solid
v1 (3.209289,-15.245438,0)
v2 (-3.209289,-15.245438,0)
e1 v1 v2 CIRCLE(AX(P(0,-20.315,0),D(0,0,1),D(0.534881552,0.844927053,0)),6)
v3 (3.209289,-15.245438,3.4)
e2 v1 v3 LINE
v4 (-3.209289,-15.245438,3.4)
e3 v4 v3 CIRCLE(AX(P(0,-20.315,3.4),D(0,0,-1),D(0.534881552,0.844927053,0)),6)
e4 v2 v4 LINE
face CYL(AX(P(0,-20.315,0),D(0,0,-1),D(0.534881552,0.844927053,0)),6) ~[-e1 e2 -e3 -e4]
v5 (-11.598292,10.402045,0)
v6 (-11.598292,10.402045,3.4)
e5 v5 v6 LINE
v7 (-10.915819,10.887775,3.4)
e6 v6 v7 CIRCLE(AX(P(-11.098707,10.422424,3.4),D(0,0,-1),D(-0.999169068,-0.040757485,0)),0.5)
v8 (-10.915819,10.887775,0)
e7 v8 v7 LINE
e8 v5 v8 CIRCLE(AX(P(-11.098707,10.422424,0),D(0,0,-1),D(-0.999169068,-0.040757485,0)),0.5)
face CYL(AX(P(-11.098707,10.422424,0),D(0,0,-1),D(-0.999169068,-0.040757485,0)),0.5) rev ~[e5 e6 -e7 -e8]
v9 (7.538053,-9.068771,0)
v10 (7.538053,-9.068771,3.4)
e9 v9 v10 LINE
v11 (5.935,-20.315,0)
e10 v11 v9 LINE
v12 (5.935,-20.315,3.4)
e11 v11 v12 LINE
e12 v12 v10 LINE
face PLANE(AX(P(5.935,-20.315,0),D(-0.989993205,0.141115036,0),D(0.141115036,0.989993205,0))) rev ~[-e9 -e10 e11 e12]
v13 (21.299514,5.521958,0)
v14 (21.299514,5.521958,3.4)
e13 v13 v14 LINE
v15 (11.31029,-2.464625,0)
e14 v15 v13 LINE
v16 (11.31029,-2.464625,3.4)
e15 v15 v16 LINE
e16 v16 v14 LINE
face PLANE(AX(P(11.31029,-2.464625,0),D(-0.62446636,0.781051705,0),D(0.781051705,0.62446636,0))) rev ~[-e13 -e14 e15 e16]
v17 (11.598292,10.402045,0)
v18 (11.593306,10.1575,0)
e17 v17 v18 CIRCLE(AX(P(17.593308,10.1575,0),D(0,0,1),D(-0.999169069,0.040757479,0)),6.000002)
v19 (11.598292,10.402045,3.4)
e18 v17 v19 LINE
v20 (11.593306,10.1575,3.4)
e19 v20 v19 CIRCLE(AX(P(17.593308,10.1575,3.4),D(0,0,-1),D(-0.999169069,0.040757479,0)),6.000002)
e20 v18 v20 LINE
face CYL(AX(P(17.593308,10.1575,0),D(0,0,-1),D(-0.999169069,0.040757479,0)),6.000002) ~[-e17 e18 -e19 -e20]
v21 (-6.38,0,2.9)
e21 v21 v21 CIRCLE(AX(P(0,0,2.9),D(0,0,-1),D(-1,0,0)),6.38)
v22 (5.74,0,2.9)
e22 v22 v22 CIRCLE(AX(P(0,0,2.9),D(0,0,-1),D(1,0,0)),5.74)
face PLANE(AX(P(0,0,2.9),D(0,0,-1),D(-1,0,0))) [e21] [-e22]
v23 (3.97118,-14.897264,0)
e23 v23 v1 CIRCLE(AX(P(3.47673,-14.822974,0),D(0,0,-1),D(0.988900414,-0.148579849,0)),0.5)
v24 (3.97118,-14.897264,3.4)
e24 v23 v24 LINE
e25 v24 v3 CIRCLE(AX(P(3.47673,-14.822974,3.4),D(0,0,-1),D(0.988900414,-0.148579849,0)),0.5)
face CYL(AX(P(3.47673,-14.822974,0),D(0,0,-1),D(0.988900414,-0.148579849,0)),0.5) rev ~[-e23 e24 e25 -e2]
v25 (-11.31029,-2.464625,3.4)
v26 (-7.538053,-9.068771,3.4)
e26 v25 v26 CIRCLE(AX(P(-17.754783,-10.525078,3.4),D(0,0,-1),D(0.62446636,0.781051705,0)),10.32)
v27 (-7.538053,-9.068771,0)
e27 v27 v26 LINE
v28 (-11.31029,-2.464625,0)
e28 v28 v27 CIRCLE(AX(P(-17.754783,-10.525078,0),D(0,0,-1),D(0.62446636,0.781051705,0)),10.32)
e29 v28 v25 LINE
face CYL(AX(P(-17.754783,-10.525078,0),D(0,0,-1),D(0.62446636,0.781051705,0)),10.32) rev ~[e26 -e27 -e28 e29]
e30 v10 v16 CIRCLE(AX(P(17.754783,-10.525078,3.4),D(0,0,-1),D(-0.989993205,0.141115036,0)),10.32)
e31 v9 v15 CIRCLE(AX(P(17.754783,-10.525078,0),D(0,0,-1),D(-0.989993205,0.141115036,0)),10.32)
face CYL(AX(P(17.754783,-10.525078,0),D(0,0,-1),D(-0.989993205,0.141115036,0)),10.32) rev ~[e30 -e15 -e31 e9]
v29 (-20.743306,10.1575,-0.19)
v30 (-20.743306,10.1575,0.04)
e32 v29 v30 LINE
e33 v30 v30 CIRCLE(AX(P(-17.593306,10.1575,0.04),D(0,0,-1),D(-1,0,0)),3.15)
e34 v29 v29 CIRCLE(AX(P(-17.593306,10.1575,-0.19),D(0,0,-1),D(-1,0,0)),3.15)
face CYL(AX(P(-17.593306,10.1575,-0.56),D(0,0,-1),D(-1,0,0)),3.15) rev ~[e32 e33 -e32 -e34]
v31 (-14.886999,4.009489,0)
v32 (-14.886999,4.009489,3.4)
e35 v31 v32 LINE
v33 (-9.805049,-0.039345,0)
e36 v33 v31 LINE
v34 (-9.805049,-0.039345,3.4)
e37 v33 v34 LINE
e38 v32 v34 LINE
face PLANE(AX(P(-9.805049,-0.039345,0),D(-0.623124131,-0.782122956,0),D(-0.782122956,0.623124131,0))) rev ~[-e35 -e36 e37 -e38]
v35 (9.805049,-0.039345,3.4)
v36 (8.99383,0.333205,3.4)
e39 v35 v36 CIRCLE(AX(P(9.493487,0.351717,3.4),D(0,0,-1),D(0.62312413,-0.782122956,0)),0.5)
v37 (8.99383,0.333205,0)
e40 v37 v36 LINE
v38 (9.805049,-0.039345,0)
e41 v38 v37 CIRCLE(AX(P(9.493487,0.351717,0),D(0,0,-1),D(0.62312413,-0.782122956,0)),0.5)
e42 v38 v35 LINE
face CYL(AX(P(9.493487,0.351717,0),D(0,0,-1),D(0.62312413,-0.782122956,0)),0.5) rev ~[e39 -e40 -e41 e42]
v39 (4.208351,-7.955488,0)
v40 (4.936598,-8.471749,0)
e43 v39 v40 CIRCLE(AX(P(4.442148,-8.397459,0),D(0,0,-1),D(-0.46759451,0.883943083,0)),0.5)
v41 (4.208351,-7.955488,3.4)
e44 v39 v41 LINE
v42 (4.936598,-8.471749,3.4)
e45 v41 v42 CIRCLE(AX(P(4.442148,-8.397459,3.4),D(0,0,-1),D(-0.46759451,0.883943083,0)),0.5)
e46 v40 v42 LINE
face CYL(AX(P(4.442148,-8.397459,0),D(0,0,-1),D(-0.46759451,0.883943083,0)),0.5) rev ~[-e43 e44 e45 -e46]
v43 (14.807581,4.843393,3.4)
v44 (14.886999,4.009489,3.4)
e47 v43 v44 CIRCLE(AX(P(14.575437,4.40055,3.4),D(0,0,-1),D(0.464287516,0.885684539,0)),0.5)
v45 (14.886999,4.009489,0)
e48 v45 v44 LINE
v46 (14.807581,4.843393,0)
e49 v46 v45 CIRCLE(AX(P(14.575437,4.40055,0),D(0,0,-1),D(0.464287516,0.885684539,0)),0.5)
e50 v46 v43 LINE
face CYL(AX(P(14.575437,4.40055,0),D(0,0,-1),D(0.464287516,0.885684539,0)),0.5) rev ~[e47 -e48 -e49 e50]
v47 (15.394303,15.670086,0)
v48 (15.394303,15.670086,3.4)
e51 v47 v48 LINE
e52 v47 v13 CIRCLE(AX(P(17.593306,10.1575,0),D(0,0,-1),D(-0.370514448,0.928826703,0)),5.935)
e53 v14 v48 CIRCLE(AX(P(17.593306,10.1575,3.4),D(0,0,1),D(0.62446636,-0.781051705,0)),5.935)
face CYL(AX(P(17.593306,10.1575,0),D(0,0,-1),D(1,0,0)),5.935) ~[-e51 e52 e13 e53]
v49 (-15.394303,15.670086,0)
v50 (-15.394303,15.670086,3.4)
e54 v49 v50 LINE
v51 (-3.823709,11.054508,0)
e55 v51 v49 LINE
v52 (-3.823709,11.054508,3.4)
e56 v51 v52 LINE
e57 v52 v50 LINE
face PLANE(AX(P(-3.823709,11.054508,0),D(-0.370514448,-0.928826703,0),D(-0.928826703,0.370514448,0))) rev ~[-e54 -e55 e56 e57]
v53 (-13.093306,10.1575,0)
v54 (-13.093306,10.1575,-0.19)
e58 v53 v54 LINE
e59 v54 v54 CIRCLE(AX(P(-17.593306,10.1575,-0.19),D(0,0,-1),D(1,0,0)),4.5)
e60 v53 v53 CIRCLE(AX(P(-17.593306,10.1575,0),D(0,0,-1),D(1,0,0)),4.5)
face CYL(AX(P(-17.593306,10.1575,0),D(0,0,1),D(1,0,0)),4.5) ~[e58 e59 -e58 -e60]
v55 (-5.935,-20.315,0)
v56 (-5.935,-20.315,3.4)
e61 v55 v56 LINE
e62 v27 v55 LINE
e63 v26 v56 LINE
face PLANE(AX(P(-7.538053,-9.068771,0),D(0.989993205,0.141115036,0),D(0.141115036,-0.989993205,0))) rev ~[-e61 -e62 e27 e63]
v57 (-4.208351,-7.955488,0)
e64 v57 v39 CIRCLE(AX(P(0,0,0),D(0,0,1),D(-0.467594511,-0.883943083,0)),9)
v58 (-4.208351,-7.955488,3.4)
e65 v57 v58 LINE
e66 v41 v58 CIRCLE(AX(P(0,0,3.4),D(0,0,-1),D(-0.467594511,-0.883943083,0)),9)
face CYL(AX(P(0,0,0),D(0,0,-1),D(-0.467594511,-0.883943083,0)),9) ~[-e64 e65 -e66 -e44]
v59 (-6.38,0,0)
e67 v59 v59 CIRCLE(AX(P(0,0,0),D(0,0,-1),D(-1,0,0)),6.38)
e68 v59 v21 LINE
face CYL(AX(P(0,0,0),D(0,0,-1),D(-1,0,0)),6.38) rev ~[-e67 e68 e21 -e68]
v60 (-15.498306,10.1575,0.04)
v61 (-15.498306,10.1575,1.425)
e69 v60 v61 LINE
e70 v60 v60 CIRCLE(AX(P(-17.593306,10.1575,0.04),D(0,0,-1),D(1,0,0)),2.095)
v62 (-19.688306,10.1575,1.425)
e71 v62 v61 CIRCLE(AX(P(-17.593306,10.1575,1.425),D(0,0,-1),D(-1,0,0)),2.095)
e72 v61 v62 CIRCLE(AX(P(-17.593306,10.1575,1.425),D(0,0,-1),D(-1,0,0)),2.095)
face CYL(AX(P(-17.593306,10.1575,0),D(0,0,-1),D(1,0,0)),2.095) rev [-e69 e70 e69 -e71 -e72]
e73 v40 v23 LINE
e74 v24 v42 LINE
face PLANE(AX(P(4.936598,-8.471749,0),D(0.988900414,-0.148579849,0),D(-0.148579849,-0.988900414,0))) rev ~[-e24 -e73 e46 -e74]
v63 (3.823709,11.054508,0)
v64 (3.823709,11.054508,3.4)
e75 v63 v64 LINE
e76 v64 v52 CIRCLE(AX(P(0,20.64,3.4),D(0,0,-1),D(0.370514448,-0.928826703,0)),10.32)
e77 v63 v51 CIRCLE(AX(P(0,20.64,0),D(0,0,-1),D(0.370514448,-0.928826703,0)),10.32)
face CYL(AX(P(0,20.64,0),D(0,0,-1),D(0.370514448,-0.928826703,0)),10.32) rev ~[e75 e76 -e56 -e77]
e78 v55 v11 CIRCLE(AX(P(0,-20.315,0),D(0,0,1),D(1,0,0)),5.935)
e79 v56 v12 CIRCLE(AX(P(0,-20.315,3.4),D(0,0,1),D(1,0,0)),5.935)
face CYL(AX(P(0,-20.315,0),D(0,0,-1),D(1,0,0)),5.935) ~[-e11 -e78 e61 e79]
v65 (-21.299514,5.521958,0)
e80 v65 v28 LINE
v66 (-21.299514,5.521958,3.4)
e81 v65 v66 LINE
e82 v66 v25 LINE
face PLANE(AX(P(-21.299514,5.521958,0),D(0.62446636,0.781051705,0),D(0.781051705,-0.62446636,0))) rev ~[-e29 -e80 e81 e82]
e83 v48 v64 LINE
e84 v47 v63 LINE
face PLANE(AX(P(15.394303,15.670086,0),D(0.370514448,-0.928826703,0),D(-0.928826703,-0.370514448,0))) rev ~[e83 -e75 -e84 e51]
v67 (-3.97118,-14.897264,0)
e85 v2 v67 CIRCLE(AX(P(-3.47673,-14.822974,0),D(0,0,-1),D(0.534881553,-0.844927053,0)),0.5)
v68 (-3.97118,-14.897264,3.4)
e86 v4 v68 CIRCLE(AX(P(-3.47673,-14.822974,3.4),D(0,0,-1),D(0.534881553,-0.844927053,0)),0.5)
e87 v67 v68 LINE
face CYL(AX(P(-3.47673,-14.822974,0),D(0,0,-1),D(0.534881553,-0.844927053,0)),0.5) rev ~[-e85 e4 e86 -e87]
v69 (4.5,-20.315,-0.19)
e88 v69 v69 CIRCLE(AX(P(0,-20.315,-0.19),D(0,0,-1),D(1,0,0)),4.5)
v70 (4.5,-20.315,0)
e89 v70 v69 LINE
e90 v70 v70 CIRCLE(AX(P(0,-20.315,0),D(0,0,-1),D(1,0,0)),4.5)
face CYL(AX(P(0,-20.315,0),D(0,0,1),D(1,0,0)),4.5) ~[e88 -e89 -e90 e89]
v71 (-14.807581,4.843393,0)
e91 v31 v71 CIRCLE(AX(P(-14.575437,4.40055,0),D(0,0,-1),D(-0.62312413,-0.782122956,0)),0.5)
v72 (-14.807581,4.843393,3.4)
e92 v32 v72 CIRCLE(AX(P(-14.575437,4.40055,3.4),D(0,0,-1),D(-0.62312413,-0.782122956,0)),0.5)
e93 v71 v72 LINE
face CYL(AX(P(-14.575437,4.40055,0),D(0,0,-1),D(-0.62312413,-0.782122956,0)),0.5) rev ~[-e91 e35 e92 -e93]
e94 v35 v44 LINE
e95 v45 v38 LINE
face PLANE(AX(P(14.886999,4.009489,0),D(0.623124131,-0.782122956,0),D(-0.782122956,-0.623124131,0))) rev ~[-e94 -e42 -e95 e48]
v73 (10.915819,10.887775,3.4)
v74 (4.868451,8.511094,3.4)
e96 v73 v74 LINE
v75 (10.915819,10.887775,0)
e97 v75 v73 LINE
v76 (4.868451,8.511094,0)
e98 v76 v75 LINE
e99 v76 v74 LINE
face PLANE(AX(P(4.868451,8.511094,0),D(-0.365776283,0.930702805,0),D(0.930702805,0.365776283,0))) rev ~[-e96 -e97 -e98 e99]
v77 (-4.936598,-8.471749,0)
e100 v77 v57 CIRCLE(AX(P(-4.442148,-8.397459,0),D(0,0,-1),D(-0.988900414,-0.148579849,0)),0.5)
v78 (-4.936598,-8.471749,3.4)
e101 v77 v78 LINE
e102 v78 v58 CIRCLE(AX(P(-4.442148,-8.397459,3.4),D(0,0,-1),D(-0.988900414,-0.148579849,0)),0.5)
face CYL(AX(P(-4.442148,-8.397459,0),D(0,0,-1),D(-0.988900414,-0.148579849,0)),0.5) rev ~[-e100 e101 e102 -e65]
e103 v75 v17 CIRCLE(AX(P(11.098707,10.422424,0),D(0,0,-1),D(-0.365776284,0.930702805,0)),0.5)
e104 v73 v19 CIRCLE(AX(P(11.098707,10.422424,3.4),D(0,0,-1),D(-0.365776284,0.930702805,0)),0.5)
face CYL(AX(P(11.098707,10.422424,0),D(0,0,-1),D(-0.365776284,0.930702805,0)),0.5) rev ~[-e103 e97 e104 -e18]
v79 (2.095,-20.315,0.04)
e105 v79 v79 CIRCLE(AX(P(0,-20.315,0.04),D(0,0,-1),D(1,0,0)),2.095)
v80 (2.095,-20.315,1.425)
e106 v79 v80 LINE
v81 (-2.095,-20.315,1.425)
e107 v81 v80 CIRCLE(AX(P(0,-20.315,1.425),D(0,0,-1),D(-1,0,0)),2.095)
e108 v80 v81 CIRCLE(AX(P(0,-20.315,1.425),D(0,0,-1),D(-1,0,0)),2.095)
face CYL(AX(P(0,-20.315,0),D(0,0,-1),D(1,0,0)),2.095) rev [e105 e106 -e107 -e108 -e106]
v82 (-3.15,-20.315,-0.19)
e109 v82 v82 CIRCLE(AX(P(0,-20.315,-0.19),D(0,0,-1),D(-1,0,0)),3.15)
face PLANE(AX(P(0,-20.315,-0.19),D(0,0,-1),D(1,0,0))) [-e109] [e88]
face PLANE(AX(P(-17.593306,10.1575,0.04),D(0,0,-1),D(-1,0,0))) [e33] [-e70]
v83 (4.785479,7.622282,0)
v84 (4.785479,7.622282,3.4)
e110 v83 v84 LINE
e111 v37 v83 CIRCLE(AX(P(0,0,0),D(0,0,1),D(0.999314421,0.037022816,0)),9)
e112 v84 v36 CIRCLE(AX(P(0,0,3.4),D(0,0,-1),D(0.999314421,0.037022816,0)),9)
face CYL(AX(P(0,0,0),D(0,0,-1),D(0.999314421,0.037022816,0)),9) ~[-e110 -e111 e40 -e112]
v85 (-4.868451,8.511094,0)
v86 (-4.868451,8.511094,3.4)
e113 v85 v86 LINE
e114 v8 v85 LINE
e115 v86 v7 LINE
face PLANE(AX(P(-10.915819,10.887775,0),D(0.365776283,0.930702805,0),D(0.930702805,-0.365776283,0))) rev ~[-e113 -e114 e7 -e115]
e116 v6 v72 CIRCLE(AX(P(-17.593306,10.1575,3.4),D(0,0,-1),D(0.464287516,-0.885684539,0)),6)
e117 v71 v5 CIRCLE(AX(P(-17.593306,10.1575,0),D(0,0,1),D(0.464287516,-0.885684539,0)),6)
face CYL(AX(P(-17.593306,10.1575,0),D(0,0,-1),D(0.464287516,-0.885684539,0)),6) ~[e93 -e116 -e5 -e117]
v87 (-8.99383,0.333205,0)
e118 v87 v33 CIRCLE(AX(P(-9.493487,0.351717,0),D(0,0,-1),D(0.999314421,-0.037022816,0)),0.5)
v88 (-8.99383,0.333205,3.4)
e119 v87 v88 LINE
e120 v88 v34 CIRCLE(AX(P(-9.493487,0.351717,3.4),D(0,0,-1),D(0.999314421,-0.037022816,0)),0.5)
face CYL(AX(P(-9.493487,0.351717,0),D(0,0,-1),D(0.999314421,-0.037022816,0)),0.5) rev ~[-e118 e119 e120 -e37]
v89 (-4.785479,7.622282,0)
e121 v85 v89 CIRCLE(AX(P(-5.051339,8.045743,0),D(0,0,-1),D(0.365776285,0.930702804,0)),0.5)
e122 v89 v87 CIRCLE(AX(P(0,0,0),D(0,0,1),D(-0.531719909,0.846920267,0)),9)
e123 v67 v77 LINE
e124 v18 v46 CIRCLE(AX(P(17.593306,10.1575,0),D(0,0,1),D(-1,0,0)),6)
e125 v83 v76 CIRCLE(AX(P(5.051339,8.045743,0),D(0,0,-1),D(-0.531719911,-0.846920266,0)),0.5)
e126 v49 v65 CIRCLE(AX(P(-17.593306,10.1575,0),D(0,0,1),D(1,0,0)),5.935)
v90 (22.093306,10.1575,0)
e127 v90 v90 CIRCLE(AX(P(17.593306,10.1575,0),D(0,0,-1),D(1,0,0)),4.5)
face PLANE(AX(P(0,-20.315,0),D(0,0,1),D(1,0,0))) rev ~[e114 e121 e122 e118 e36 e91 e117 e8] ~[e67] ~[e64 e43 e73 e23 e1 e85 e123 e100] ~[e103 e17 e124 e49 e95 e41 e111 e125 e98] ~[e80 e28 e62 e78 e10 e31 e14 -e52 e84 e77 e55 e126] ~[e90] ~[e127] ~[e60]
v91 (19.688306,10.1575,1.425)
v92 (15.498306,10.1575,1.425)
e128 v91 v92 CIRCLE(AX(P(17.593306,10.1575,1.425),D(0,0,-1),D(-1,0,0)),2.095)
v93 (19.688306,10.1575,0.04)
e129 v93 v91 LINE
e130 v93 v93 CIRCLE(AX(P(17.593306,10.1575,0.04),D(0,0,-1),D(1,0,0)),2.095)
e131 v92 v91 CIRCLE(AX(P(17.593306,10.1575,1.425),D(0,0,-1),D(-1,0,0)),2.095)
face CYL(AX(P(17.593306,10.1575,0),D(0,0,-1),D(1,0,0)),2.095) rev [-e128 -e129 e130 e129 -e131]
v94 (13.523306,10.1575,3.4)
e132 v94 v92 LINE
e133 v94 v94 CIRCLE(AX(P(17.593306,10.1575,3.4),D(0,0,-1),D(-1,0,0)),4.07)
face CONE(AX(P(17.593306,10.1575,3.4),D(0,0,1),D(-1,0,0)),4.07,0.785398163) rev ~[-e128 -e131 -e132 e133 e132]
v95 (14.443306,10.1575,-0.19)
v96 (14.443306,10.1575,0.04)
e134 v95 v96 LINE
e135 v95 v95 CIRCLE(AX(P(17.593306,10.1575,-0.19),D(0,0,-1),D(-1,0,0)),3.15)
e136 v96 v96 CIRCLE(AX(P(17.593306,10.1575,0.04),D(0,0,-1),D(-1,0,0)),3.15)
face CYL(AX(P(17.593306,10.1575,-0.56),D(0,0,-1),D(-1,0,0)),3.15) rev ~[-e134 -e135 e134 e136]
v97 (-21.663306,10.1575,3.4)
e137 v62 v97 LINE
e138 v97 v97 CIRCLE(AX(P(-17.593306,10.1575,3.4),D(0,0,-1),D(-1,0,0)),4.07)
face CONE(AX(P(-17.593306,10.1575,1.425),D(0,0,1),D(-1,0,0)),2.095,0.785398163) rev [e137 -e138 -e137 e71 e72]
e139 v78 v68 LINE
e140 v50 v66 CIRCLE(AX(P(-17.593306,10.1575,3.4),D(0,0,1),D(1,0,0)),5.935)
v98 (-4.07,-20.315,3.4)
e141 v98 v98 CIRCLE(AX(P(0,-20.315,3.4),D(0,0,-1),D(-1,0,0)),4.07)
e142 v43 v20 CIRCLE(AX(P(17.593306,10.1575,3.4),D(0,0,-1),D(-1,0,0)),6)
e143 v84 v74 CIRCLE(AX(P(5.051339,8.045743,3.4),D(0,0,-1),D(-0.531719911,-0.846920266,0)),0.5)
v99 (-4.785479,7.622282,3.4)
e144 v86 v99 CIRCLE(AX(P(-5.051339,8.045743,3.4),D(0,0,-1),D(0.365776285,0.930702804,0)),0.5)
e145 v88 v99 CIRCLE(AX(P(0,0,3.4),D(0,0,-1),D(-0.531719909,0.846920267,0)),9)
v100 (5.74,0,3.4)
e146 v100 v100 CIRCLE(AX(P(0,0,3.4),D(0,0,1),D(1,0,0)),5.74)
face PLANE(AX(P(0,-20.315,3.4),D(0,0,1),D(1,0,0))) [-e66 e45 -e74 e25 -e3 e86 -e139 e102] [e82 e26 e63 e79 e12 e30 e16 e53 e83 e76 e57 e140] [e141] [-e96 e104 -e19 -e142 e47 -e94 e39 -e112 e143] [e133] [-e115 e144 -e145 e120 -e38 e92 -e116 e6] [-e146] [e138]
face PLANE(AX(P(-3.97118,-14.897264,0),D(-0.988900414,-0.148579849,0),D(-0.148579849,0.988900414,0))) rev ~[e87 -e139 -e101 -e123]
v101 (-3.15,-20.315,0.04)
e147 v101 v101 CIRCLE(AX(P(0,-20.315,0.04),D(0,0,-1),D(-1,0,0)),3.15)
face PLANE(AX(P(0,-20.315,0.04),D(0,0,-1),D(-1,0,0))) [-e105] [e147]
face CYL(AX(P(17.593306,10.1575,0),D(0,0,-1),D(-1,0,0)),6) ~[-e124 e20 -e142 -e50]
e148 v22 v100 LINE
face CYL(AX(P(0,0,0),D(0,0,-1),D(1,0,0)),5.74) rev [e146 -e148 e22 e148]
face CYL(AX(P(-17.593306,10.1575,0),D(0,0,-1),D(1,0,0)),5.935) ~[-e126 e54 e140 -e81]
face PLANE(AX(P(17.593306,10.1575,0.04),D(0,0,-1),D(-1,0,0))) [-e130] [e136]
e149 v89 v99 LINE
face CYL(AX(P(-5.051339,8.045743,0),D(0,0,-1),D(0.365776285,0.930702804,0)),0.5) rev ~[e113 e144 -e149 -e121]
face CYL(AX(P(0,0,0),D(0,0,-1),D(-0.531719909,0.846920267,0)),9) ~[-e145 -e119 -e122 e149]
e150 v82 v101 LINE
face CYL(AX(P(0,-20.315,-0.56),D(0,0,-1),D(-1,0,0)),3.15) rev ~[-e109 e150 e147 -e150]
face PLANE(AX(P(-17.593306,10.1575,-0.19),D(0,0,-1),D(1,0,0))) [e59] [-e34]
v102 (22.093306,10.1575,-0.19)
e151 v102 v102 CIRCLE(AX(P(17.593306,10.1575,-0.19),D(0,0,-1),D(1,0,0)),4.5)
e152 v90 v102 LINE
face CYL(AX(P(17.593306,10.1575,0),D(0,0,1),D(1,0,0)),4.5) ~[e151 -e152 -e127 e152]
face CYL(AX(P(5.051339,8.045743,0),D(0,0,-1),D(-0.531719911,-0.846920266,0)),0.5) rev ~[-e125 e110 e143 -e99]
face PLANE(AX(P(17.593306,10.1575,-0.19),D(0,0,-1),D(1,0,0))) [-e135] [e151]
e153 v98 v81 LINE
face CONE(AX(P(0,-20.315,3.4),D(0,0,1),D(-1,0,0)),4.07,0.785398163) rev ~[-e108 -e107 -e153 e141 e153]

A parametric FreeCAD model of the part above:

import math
import FreeCAD as App
import Part
import Sketcher
from FreeCAD import Vector
Q = App.Units.Quantity


def add_polygon(sketch, points):
    """Adds a closed chain of lines whose ends are joined by coincident constraints."""
    first, n = sketch.GeometryCount, len(points)
    for a, b in zip(points, points[1:] + points[:1]):
        sketch.addGeometry(Part.LineSegment(App.Vector(*a, 0), App.Vector(*b, 0)), False)
    for i in range(n):
        sketch.addConstraint(Sketcher.Constraint("Coincident", first + i, 2, first + (i + 1) % n, 1))

doc = App.newDocument("Part")
body = doc.addObject("PartDesign::Body", "Body")

# Sketch on XY plane
sketch1 = doc.addObject("Sketcher::SketchObject", "Sketch")
body.addObject(sketch1)
sketch1.AttachmentSupport = (doc.XY_Plane, [""])
sketch1.MapMode = "FlatFace"
sketch1.addGeometry(Part.ArcOfCircle(Part.Circle(Vector(-17.6, 10.2, 0), Vector(0, 0, 1), 5.9), math.radians(68), math.radians(231)), False)
sketch1.addGeometry(Part.LineSegment(Vector(-21.3, 5.5, 0), Vector(-11.3, -2.5, 0)), False)
sketch1.addGeometry(Part.ArcOfCircle(Part.Circle(Vector(-17.8, -10.5, 0), Vector(0, 0, 1), 10.3), math.radians(8), math.radians(51)), False)
sketch1.addGeometry(Part.LineSegment(Vector(-7.5, -9.1, 0), Vector(-5.9, -20.3, 0)), False)
sketch1.addGeometry(Part.ArcOfCircle(Part.Circle(Vector(0, -20.3, 0), Vector(0, 0, 1), 5.9), math.radians(180), math.radians(360)), False)
sketch1.addGeometry(Part.LineSegment(Vector(5.9, -20.3, 0), Vector(7.5, -9.1, 0)), False)
sketch1.addGeometry(Part.ArcOfCircle(Part.Circle(Vector(17.8, -10.5, 0), Vector(0, 0, 1), 10.3), math.radians(129), math.radians(172)), False)
sketch1.addGeometry(Part.LineSegment(Vector(11.3, -2.5, 0), Vector(21.3, 5.5, 0)), False)
sketch1.addGeometry(Part.ArcOfCircle(Part.Circle(Vector(17.6, 10.2, 0), Vector(0, 0, 1), 5.9), math.radians(-51), math.radians(112)), False)
sketch1.addGeometry(Part.LineSegment(Vector(15.4, 15.7, 0), Vector(3.8, 11.1, 0)), False)
sketch1.addGeometry(Part.ArcOfCircle(Part.Circle(Vector(0, 20.6, 0), Vector(0, 0, 1), 10.3), math.radians(-112), math.radians(-68)), False)
sketch1.addGeometry(Part.LineSegment(Vector(-3.8, 11.1, 0), Vector(-15.4, 15.7, 0)), False)
sketch1.addGeometry(Part.Circle(Vector(-17.6, 10.2, 0), Vector(0, 0, 1), 2.1), False)
sketch1.addGeometry(Part.Circle(Vector(0, 0, 0), Vector(0, 0, 1), 5.7), False)
sketch1.addGeometry(Part.Circle(Vector(0, -20.3, 0), Vector(0, 0, 1), 2.1), False)
sketch1.addGeometry(Part.Circle(Vector(17.6, 10.2, 0), Vector(0, 0, 1), 2.1), False)
sketch1.addConstraint(Sketcher.Constraint("Tangent", 0, 2, 1, 1))
sketch1.addConstraint(Sketcher.Constraint("Tangent", 1, 2, 2, 2))
sketch1.addConstraint(Sketcher.Constraint("Tangent", 2, 1, 3, 1))
sketch1.addConstraint(Sketcher.Constraint("Coincident", 3, 2, 4, 1))
sketch1.addConstraint(Sketcher.Constraint("Coincident", 4, 2, 5, 1))
sketch1.addConstraint(Sketcher.Constraint("Tangent", 5, 2, 6, 2))
sketch1.addConstraint(Sketcher.Constraint("Tangent", 6, 1, 7, 1))
sketch1.addConstraint(Sketcher.Constraint("Tangent", 7, 2, 8, 1))
sketch1.addConstraint(Sketcher.Constraint("Tangent", 8, 2, 9, 1))
sketch1.addConstraint(Sketcher.Constraint("Tangent", 9, 2, 10, 2))
sketch1.addConstraint(Sketcher.Constraint("Tangent", 10, 1, 11, 1))
sketch1.addConstraint(Sketcher.Constraint("Tangent", 11, 2, 0, 1))
sketch1.addConstraint(Sketcher.Constraint("Coincident", 13, 3, -1, 1))
sketch1.addConstraint(Sketcher.Constraint("Coincident", 12, 3, 0, 3))
sketch1.addConstraint(Sketcher.Constraint("Coincident", 14, 3, 4, 3))
sketch1.addConstraint(Sketcher.Constraint("Coincident", 15, 3, 8, 3))
sketch1.addConstraint(Sketcher.Constraint("Equal", 0, 4))
sketch1.addConstraint(Sketcher.Constraint("Equal", 2, 6))
sketch1.addConstraint(Sketcher.Constraint("Equal", 4, 8))
sketch1.addConstraint(Sketcher.Constraint("Equal", 6, 10))
sketch1.addConstraint(Sketcher.Constraint("Equal", 12, 14))
sketch1.addConstraint(Sketcher.Constraint("Equal", 14, 15))
sketch1.addConstraint(Sketcher.Constraint("Symmetric", 2, 3, 6, 3, -2))
sketch1.addConstraint(Sketcher.Constraint("Symmetric", 0, 3, 8, 3, -2))
sketch1.addConstraint(Sketcher.Constraint("Symmetric", 3, 2, 4, 2, -2))
sketch1.addConstraint(Sketcher.Constraint("PointOnObject", 10, 3, -2))
sketch1.addConstraint(Sketcher.Constraint("Horizontal", 14, 3, 3, 2))
sketch1.addConstraint(Sketcher.Constraint("Diameter", 12, Q("4.19 mm")))
sketch1.addConstraint(Sketcher.Constraint("Diameter", 13, Q("11.48 mm")))
sketch1.addConstraint(Sketcher.Constraint("Radius", 2, Q("10.32 mm")))
sketch1.addConstraint(Sketcher.Constraint("Radius", 0, Q("5.935 mm")))
sketch1.addConstraint(Sketcher.Constraint("DistanceY", -1, 1, 10, 3, Q("20.64 mm")))
sketch1.addConstraint(Sketcher.Constraint("DistanceY", 4, 3, -1, 1, Q("20.315 mm")))
sketch1.addConstraint(Sketcher.Constraint("DistanceY", -1, 1, 0, 3, Q("10.1575 mm")))
sketch1.addConstraint(Sketcher.Constraint("DistanceY", 2, 3, -1, 1, Q("10.525078 mm")))
sketch1.addConstraint(Sketcher.Constraint("DistanceY", -1, 1, 0, 2, Q("5.521958 mm")))
sketch1.addConstraint(Sketcher.Constraint("DistanceX", 1, 2, -1, 1, Q("11.31029 mm")))
pad1 = doc.addObject("PartDesign::Pad", "Pad")
body.addObject(pad1)
pad1.Profile = sketch1
pad1.Length = 3.4

# Sketch on XY plane
sketch2 = doc.addObject("Sketcher::SketchObject", "Sketch001")
body.addObject(sketch2)
sketch2.AttachmentSupport = (doc.XY_Plane, [""])
sketch2.MapMode = "FlatFace"
sketch2.addGeometry(Part.Circle(Vector(0, 0, 0), Vector(0, 0, 1), 6), False)
sketch2.addConstraint(Sketcher.Constraint("Coincident", 0, 3, -1, 1))
sketch2.addConstraint(Sketcher.Constraint("Diameter", 0, Q("12.76 mm")))
pocket1 = doc.addObject("PartDesign::Pocket", "Pocket")
body.addObject(pocket1)
pocket1.Profile = sketch2
pocket1.Length = 2.9
pocket1.Reversed = True

# Sketch on XY plane
sketch3 = doc.addObject("Sketcher::SketchObject", "Sketch002")
body.addObject(sketch3)
sketch3.AttachmentSupport = (doc.XY_Plane, [""])
sketch3.MapMode = "FlatFace"
sketch3.addGeometry(Part.Circle(Vector(0, -20.3, 0), Vector(0, 0, 1), 4.5), False)
sketch3.addGeometry(Part.Circle(Vector(-17.6, 10.2, 0), Vector(0, 0, 1), 4.5), False)
sketch3.addGeometry(Part.Circle(Vector(17.6, 10.2, 0), Vector(0, 0, 1), 4.5), False)
sketch3.addConstraint(Sketcher.Constraint("Equal", 0, 1))
sketch3.addConstraint(Sketcher.Constraint("Equal", 1, 2))
sketch3.addConstraint(Sketcher.Constraint("Symmetric", 1, 3, 2, 3, -2))
sketch3.addConstraint(Sketcher.Constraint("PointOnObject", 0, 3, -2))
sketch3.addConstraint(Sketcher.Constraint("Diameter", 0, Q("9 mm")))
sketch3.addConstraint(Sketcher.Constraint("DistanceY", 0, 3, -1, 1, Q("20.315 mm")))
sketch3.addConstraint(Sketcher.Constraint("DistanceY", -1, 1, 1, 3, Q("10.1575 mm")))
sketch3.addConstraint(Sketcher.Constraint("DistanceX", 1, 3, -1, 1, Q("17.593306 mm")))
pad2 = doc.addObject("PartDesign::Pad", "Pad001")
body.addObject(pad2)
pad2.Profile = sketch3
pad2.Length = 0.56
pad2.Reversed = True

# Sketch on XY plane
sketch4 = doc.addObject("Sketcher::SketchObject", "Sketch003")
body.addObject(sketch4)
sketch4.AttachmentSupport = (doc.XY_Plane, [""])
sketch4.MapMode = "FlatFace"
sketch4.AttachmentOffset = App.Placement(Vector(0, 0, -0.56), App.Rotation())
sketch4.addGeometry(Part.Circle(Vector(0, -20.3, 0), Vector(0, 0, 1), 3.1), False)
sketch4.addConstraint(Sketcher.Constraint("PointOnObject", 0, 3, -2))
sketch4.addConstraint(Sketcher.Constraint("Diameter", 0, Q("6.3 mm")))
sketch4.addConstraint(Sketcher.Constraint("DistanceY", 0, 3, -1, 1, Q("20.315 mm")))
pocket2 = doc.addObject("PartDesign::Pocket", "Pocket001")
body.addObject(pocket2)
pocket2.Profile = sketch4
pocket2.Length = 0.6
pocket2.Reversed = True

# Sketch on XY plane
sketch5 = doc.addObject("Sketcher::SketchObject", "Sketch004")
body.addObject(sketch5)
sketch5.AttachmentSupport = (doc.XY_Plane, [""])
sketch5.MapMode = "FlatFace"
sketch5.AttachmentOffset = App.Placement(Vector(0, 0, -0.56), App.Rotation())
sketch5.addGeometry(Part.Circle(Vector(17.6, 10.2, 0), Vector(0, 0, 1), 3.1), False)
sketch5.addConstraint(Sketcher.Constraint("Diameter", 0, Q("6.3 mm")))
sketch5.addConstraint(Sketcher.Constraint("DistanceY", -1, 1, 0, 3, Q("10.1575 mm")))
sketch5.addConstraint(Sketcher.Constraint("DistanceX", -1, 1, 0, 3, Q("17.593306 mm")))
pocket3 = doc.addObject("PartDesign::Pocket", "Pocket002")
body.addObject(pocket3)
pocket3.Profile = sketch5
pocket3.Length = 0.6
pocket3.Reversed = True

# Sketch on XY plane
sketch6 = doc.addObject("Sketcher::SketchObject", "Sketch005")
body.addObject(sketch6)
sketch6.AttachmentSupport = (doc.XY_Plane, [""])
sketch6.MapMode = "FlatFace"
sketch6.AttachmentOffset = App.Placement(Vector(0, 0, -0.56), App.Rotation())
sketch6.addGeometry(Part.Circle(Vector(-17.6, 10.2, 0), Vector(0, 0, 1), 3.1), False)
sketch6.addConstraint(Sketcher.Constraint("Diameter", 0, Q("6.3 mm")))
sketch6.addConstraint(Sketcher.Constraint("DistanceY", -1, 1, 0, 3, Q("10.1575 mm")))
sketch6.addConstraint(Sketcher.Constraint("DistanceX", 0, 3, -1, 1, Q("17.593306 mm")))
pocket4 = doc.addObject("PartDesign::Pocket", "Pocket003")
body.addObject(pocket4)
pocket4.Profile = sketch6
pocket4.Length = 0.6
pocket4.Reversed = True

# Sketch on XZ plane
sketch7 = doc.addObject("Sketcher::SketchObject", "Sketch006")
body.addObject(sketch7)
sketch7.AttachmentSupport = (doc.XZ_Plane, [""])
sketch7.MapMode = "FlatFace"
sketch7.AttachmentOffset = App.Placement(Vector(0, 0, -10.1575), App.Rotation())
add_polygon(sketch7, [(-19.7, 1.4), (-19.7, 3.4), (-21.7, 3.4)])  # lines 0-2
sketch7.addGeometry(Part.LineSegment(Vector(-17.6, 3.4, 0), Vector(-17.6, 1.4, 0)), True)  # axis
sketch7.addConstraint(Sketcher.Constraint("Vertical", 0))
sketch7.addConstraint(Sketcher.Constraint("Horizontal", 1))
sketch7.addConstraint(Sketcher.Constraint("Vertical", 3))
sketch7.addConstraint(Sketcher.Constraint("Horizontal", 1, 2, 3, 1))
sketch7.addConstraint(Sketcher.Constraint("Horizontal", 2, 2, 3, 2))
sketch7.addConstraint(Sketcher.Constraint("Equal", 1, 0))
sketch7.addConstraint(Sketcher.Constraint("DistanceY", -1, 1, 0, 2, Q("3.4 mm")))
sketch7.addConstraint(Sketcher.Constraint("DistanceX", 1, 2, 1, 1, Q("1.975 mm")))
sketch7.addConstraint(Sketcher.Constraint("DistanceX", 1, 2, 3, 1, Q("4.07 mm")))
sketch7.addConstraint(Sketcher.Constraint("DistanceX", 0, 2, -1, 1, Q("19.688306 mm")))
groove = doc.addObject("PartDesign::Groove", "Groove")
body.addObject(groove)
groove.Profile = sketch7
groove.ReferenceAxis = (sketch7, ["Axis0"])
groove.Angle = 360

# Sketch on an angled plane
sketch8 = doc.addObject("Sketcher::SketchObject", "Sketch007")
body.addObject(sketch8)
sketch8.Placement = App.Placement(Vector(8.796653, -5.07875, 0), App.Rotation(Vector(0, 0, 1), Vector(0.5, 0.866025404, 0), Vector(-0.866025404, 0.5, 0), "ZXY"))
add_polygon(sketch8, [(3.4, 19.7), (3.4, 21.7), (1.4, 19.7)])  # lines 0-2
sketch8.addGeometry(Part.LineSegment(Vector(3.4, 17.6, 0), Vector(1.4, 17.6, 0)), True)  # axis
sketch8.addConstraint(Sketcher.Constraint("Vertical", 0))
sketch8.addConstraint(Sketcher.Constraint("Horizontal", 2))
sketch8.addConstraint(Sketcher.Constraint("Horizontal", 3))
sketch8.addConstraint(Sketcher.Constraint("Vertical", 2, 2, 3, 1))
sketch8.addConstraint(Sketcher.Constraint("Vertical", 1, 2, 3, 2))
sketch8.addConstraint(Sketcher.Constraint("Equal", 3, 0))
sketch8.addConstraint(Sketcher.Constraint("DistanceX", -1, 1, 0, 2, Q("3.4 mm")))
sketch8.addConstraint(Sketcher.Constraint("DistanceX", 2, 1, 2, 2, Q("1.975 mm")))
sketch8.addConstraint(Sketcher.Constraint("DistanceY", 3, 1, 0, 2, Q("4.07 mm")))
sketch8.addConstraint(Sketcher.Constraint("DistanceY", -1, 1, 0, 2, Q("21.663306 mm")))
groove2 = doc.addObject("PartDesign::Groove", "Groove001")
body.addObject(groove2)
groove2.Profile = sketch8
groove2.ReferenceAxis = (sketch8, ["Axis0"])
groove2.Angle = 360

# Sketch on an angled plane
sketch9 = doc.addObject("Sketcher::SketchObject", "Sketch008")
body.addObject(sketch9)
sketch9.Placement = App.Placement(Vector(8.796653, -5.07875, 0), App.Rotation(Vector(0, 0, 1), Vector(0.5, 0.866025404, 0), Vector(-0.866025404, 0.5, 0), "ZXY"))
add_polygon(sketch9, [(3.4, -15.5), (3.4, -13.5), (1.4, -15.5)])  # lines 0-2
sketch9.addGeometry(Part.LineSegment(Vector(3.4, -17.6, 0), Vector(1.4, -17.6, 0)), True)  # axis
sketch9.addConstraint(Sketcher.Constraint("Vertical", 0))
sketch9.addConstraint(Sketcher.Constraint("Horizontal", 2))
sketch9.addConstraint(Sketcher.Constraint("Horizontal", 3))
sketch9.addConstraint(Sketcher.Constraint("Vertical", 2, 2, 3, 1))
sketch9.addConstraint(Sketcher.Constraint("Vertical", 1, 2, 3, 2))
sketch9.addConstraint(Sketcher.Constraint("Equal", 3, 0))
sketch9.addConstraint(Sketcher.Constraint("DistanceX", -1, 1, 0, 2, Q("3.4 mm")))
sketch9.addConstraint(Sketcher.Constraint("DistanceX", 2, 1, 2, 2, Q("1.975 mm")))
sketch9.addConstraint(Sketcher.Constraint("DistanceY", 3, 1, 0, 2, Q("4.07 mm")))
sketch9.addConstraint(Sketcher.Constraint("DistanceY", 0, 2, -1, 1, Q("13.523306 mm")))
groove3 = doc.addObject("PartDesign::Groove", "Groove002")
body.addObject(groove3)
groove3.Profile = sketch9
groove3.ReferenceAxis = (sketch9, ["Axis0"])
groove3.Angle = 360

# Sketch on XY plane
sketch10 = doc.addObject("Sketcher::SketchObject", "Sketch009")
body.addObject(sketch10)
sketch10.AttachmentSupport = (doc.XY_Plane, [""])
sketch10.MapMode = "FlatFace"
sketch10.addGeometry(Part.LineSegment(Vector(-9.81, -0.04, 0), Vector(-14.89, 4.01, 0)), False)
sketch10.addGeometry(Part.ArcOfCircle(Part.Circle(Vector(-14.58, 4.4, 0), Vector(0, 0, 1), 0.5), math.radians(118), math.radians(231)), False)
sketch10.addGeometry(Part.ArcOfCircle(Part.Circle(Vector(-17.59, 10.16, 0), Vector(0, 0, 1), 6), math.radians(-62), math.radians(2)), False)
sketch10.addGeometry(Part.ArcOfCircle(Part.Circle(Vector(-11.1, 10.42, 0), Vector(0, 0, 1), 0.5), math.radians(69), math.radians(182)), False)
sketch10.addGeometry(Part.LineSegment(Vector(-10.92, 10.89, 0), Vector(-4.87, 8.51, 0)), False)
sketch10.addGeometry(Part.ArcOfCircle(Part.Circle(Vector(-5.05, 8.05, 0), Vector(0, 0, 1), 0.5), math.radians(-58), math.radians(69)), False)
sketch10.addGeometry(Part.ArcOfCircle(Part.Circle(Vector(0, 0, 0), Vector(0, 0, 1), 9), math.radians(122), math.radians(178)), False)
sketch10.addGeometry(Part.ArcOfCircle(Part.Circle(Vector(-9.49, 0.35, 0), Vector(0, 0, 1), 0.5), math.radians(-129), math.radians(-2)), False)
sketch10.addGeometry(Part.LineSegment(Vector(-3.97, -14.9, 0), Vector(-4.94, -8.47, 0)), False)
sketch10.addGeometry(Part.ArcOfCircle(Part.Circle(Vector(-4.44, -8.4, 0), Vector(0, 0, 1), 0.5), math.radians(62), math.radians(189)), False)
sketch10.addGeometry(Part.ArcOfCircle(Part.Circle(Vector(0, 0, 0), Vector(0, 0, 1), 9), math.radians(-118), math.radians(-62)), False)
sketch10.addGeometry(Part.ArcOfCircle(Part.Circle(Vector(4.44, -8.4, 0), Vector(0, 0, 1), 0.5), math.radians(-9), math.radians(118)), False)
sketch10.addGeometry(Part.LineSegment(Vector(4.94, -8.47, 0), Vector(3.97, -14.9, 0)), False)
sketch10.addGeometry(Part.ArcOfCircle(Part.Circle(Vector(3.48, -14.82, 0), Vector(0, 0, 1), 0.5), math.radians(-122), math.radians(-9)), False)
sketch10.addGeometry(Part.ArcOfCircle(Part.Circle(Vector(0, -20.32, 0), Vector(0, 0, 1), 6), math.radians(58), math.radians(122)), False)
sketch10.addGeometry(Part.ArcOfCircle(Part.Circle(Vector(-3.48, -14.82, 0), Vector(0, 0, 1), 0.5), math.radians(-171), math.radians(-58)), False)
sketch10.addGeometry(Part.LineSegment(Vector(4.87, 8.51, 0), Vector(10.92, 10.89, 0)), False)
sketch10.addGeometry(Part.ArcOfCircle(Part.Circle(Vector(11.1, 10.42, 0), Vector(0, 0, 1), 0.5), math.radians(-2), math.radians(111)), False)
sketch10.addGeometry(Part.ArcOfCircle(Part.Circle(Vector(17.59, 10.16, 0), Vector(0, 0, 1), 6), math.radians(177.66), math.radians(180)), False)
sketch10.addGeometry(Part.ArcOfCircle(Part.Circle(Vector(17.59, 10.16, 0), Vector(0, 0, 1), 6), math.radians(180), math.radians(242)), False)
sketch10.addGeometry(Part.ArcOfCircle(Part.Circle(Vector(14.58, 4.4, 0), Vector(0, 0, 1), 0.5), math.radians(-51), math.radians(62)), False)
sketch10.addGeometry(Part.LineSegment(Vector(14.89, 4.01, 0), Vector(9.81, -0.04, 0)), False)
sketch10.addGeometry(Part.ArcOfCircle(Part.Circle(Vector(9.49, 0.35, 0), Vector(0, 0, 1), 0.5), math.radians(-178), math.radians(-51)), False)
sketch10.addGeometry(Part.ArcOfCircle(Part.Circle(Vector(0, 0, 0), Vector(0, 0, 1), 9), math.radians(2), math.radians(58)), False)
sketch10.addGeometry(Part.ArcOfCircle(Part.Circle(Vector(5.05, 8.05, 0), Vector(0, 0, 1), 0.5), math.radians(111), math.radians(238)), False)
sketch10.addConstraint(Sketcher.Constraint("Tangent", 0, 2, 1, 2))
sketch10.addConstraint(Sketcher.Constraint("Tangent", 1, 1, 2, 1))
sketch10.addConstraint(Sketcher.Constraint("Tangent", 2, 2, 3, 2))
sketch10.addConstraint(Sketcher.Constraint("Tangent", 3, 1, 4, 1))
sketch10.addConstraint(Sketcher.Constraint("Tangent", 4, 2, 5, 2))
sketch10.addConstraint(Sketcher.Constraint("Tangent", 5, 1, 6, 1))
sketch10.addConstraint(Sketcher.Constraint("Tangent", 6, 2, 7, 2))
sketch10.addConstraint(Sketcher.Constraint("Tangent", 7, 1, 0, 1))
sketch10.addConstraint(Sketcher.Constraint("Tangent", 8, 2, 9, 2))
sketch10.addConstraint(Sketcher.Constraint("Tangent", 9, 1, 10, 1))
sketch10.addConstraint(Sketcher.Constraint("Tangent", 10, 2, 11, 2))
sketch10.addConstraint(Sketcher.Constraint("Tangent", 11, 1, 12, 1))
sketch10.addConstraint(Sketcher.Constraint("Tangent", 12, 2, 13, 2))
sketch10.addConstraint(Sketcher.Constraint("Tangent", 13, 1, 14, 1))
sketch10.addConstraint(Sketcher.Constraint("Tangent", 14, 2, 15, 2))
sketch10.addConstraint(Sketcher.Constraint("Tangent", 15, 1, 8, 1))
sketch10.addConstraint(Sketcher.Constraint("Tangent", 16, 2, 17, 2))
sketch10.addConstraint(Sketcher.Constraint("Tangent", 17, 1, 18, 1))
sketch10.addConstraint(Sketcher.Constraint("Tangent", 18, 2, 19, 1))
sketch10.addConstraint(Sketcher.Constraint("Tangent", 19, 2, 20, 2))
sketch10.addConstraint(Sketcher.Constraint("Tangent", 20, 1, 21, 1))
sketch10.addConstraint(Sketcher.Constraint("Tangent", 21, 2, 22, 2))
sketch10.addConstraint(Sketcher.Constraint("Tangent", 22, 1, 23, 1))
sketch10.addConstraint(Sketcher.Constraint("Tangent", 23, 2, 24, 2))
sketch10.addConstraint(Sketcher.Constraint("Tangent", 24, 1, 16, 1))
sketch10.addConstraint(Sketcher.Constraint("Coincident", 6, 3, -1, 1))
sketch10.addConstraint(Sketcher.Constraint("Coincident", 10, 3, -1, 1))
sketch10.addConstraint(Sketcher.Constraint("Coincident", 23, 3, -1, 1))
sketch10.addConstraint(Sketcher.Constraint("Equal", 1, 3))
sketch10.addConstraint(Sketcher.Constraint("Equal", 3, 5))
sketch10.addConstraint(Sketcher.Constraint("Equal", 5, 7))
sketch10.addConstraint(Sketcher.Constraint("Equal", 7, 9))
sketch10.addConstraint(Sketcher.Constraint("Equal", 6, 10))
sketch10.addConstraint(Sketcher.Constraint("Equal", 9, 11))
sketch10.addConstraint(Sketcher.Constraint("Equal", 11, 13))
sketch10.addConstraint(Sketcher.Constraint("Equal", 2, 14))
sketch10.addConstraint(Sketcher.Constraint("Equal", 13, 15))
sketch10.addConstraint(Sketcher.Constraint("Equal", 15, 17))
sketch10.addConstraint(Sketcher.Constraint("Equal", 14, 18))
sketch10.addConstraint(Sketcher.Constraint("Equal", 18, 19))
sketch10.addConstraint(Sketcher.Constraint("Equal", 17, 20))
sketch10.addConstraint(Sketcher.Constraint("Equal", 20, 22))
sketch10.addConstraint(Sketcher.Constraint("Equal", 10, 23))
sketch10.addConstraint(Sketcher.Constraint("Equal", 22, 24))
sketch10.addConstraint(Sketcher.Constraint("Symmetric", 13, 3, 15, 3, -2))
sketch10.addConstraint(Sketcher.Constraint("Symmetric", 3, 3, 17, 3, -2))
sketch10.addConstraint(Sketcher.Constraint("Symmetric", 1, 3, 20, 3, -2))
sketch10.addConstraint(Sketcher.Constraint("Horizontal", 9, 3, 11, 3))
sketch10.addConstraint(Sketcher.Constraint("Horizontal", 7, 3, 22, 3))
sketch10.addConstraint(Sketcher.Constraint("Horizontal", 5, 3, 24, 3))
sketch10.addConstraint(Sketcher.Constraint("Horizontal", 19, 3, 18, 2))
sketch10.addConstraint(Sketcher.Constraint("Equal", 0, 4))
sketch10.addConstraint(Sketcher.Constraint("Equal", 4, 8))
sketch10.addConstraint(Sketcher.Constraint("Radius", 2, Q("6 mm")))
sketch10.addConstraint(Sketcher.Constraint("Radius", 6, Q("9 mm")))
sketch10.addConstraint(Sketcher.Constraint("Radius", 1, Q("0.5 mm")))
sketch10.addConstraint(Sketcher.Constraint("DistanceY", 14, 3, -1, 1, Q("20.315 mm")))
sketch10.addConstraint(Sketcher.Constraint("DistanceX", 0, 2, -1, 1, Q("14.886999 mm")))
sketch10.addConstraint(Sketcher.Constraint("DistanceY", -1, 1, 2, 3, Q("10.1575 mm")))
sketch10.addConstraint(Sketcher.Constraint("DistanceX", 8, 2, -1, 1, Q("4.936598 mm")))
sketch10.addConstraint(Sketcher.Constraint("DistanceX", 2, 3, 3, 3, Q("6.494599 mm")))
sketch10.addConstraint(Sketcher.Constraint("DistanceX", 1, 3, 5, 3, Q("9.524098 mm")))
sketch10.addConstraint(Sketcher.Constraint("DistanceY", 9, 3, 5, 3, Q("16.443202 mm")))
pocket5 = doc.addObject("PartDesign::Pocket", "Pocket004")
body.addObject(pocket5)
pocket5.Profile = sketch10
pocket5.Length = 10
pocket5.Reversed = True

# Sketch on XY plane
sketch11 = doc.addObject("Sketcher::SketchObject", "Sketch010")
body.addObject(sketch11)
sketch11.AttachmentSupport = (doc.XY_Plane, [""])
sketch11.MapMode = "FlatFace"
sketch11.AttachmentOffset = App.Placement(Vector(0, 0, -0.56), App.Rotation())
sketch11.addGeometry(Part.Circle(Vector(0, -20.3, 0), Vector(0, 0, 1), 4.5), False)
sketch11.addGeometry(Part.Circle(Vector(0, -20.3, 0), Vector(0, 0, 1), 3.1), False)
sketch11.addConstraint(Sketcher.Constraint("Coincident", 1, 3, 0, 3))
sketch11.addConstraint(Sketcher.Constraint("PointOnObject", 0, 3, -2))
sketch11.addConstraint(Sketcher.Constraint("Diameter", 0, Q("9 mm")))
sketch11.addConstraint(Sketcher.Constraint("Diameter", 1, Q("6.3 mm")))
sketch11.addConstraint(Sketcher.Constraint("DistanceY", 0, 3, -1, 1, Q("20.315 mm")))
pocket6 = doc.addObject("PartDesign::Pocket", "Pocket005")
body.addObject(pocket6)
pocket6.Profile = sketch11
pocket6.Length = 0.37
pocket6.Reversed = True

# Sketch on XY plane
sketch12 = doc.addObject("Sketcher::SketchObject", "Sketch011")
body.addObject(sketch12)
sketch12.AttachmentSupport = (doc.XY_Plane, [""])
sketch12.MapMode = "FlatFace"
sketch12.AttachmentOffset = App.Placement(Vector(0, 0, -0.56), App.Rotation())
sketch12.addGeometry(Part.Circle(Vector(17.6, 10.2, 0), Vector(0, 0, 1), 4.5), False)
sketch12.addGeometry(Part.Circle(Vector(17.6, 10.2, 0), Vector(0, 0, 1), 3.1), False)
sketch12.addConstraint(Sketcher.Constraint("Coincident", 1, 3, 0, 3))
sketch12.addConstraint(Sketcher.Constraint("Diameter", 0, Q("9 mm")))
sketch12.addConstraint(Sketcher.Constraint("Diameter", 1, Q("6.3 mm")))
sketch12.addConstraint(Sketcher.Constraint("DistanceY", -1, 1, 0, 3, Q("10.1575 mm")))
sketch12.addConstraint(Sketcher.Constraint("DistanceX", -1, 1, 0, 3, Q("17.593306 mm")))
pocket7 = doc.addObject("PartDesign::Pocket", "Pocket006")
body.addObject(pocket7)
pocket7.Profile = sketch12
pocket7.Length = 0.37
pocket7.Reversed = True

# Sketch on XY plane
sketch13 = doc.addObject("Sketcher::SketchObject", "Sketch012")
body.addObject(sketch13)
sketch13.AttachmentSupport = (doc.XY_Plane, [""])
sketch13.MapMode = "FlatFace"
sketch13.AttachmentOffset = App.Placement(Vector(0, 0, -0.56), App.Rotation())
sketch13.addGeometry(Part.Circle(Vector(-17.6, 10.2, 0), Vector(0, 0, 1), 4.5), False)
sketch13.addGeometry(Part.Circle(Vector(-17.6, 10.2, 0), Vector(0, 0, 1), 3.1), False)
sketch13.addConstraint(Sketcher.Constraint("Coincident", 1, 3, 0, 3))
sketch13.addConstraint(Sketcher.Constraint("Diameter", 0, Q("9 mm")))
sketch13.addConstraint(Sketcher.Constraint("Diameter", 1, Q("6.3 mm")))
sketch13.addConstraint(Sketcher.Constraint("DistanceY", -1, 1, 0, 3, Q("10.1575 mm")))
sketch13.addConstraint(Sketcher.Constraint("DistanceX", 0, 3, -1, 1, Q("17.593306 mm")))
pocket8 = doc.addObject("PartDesign::Pocket", "Pocket007")
body.addObject(pocket8)
pocket8.Profile = sketch13
pocket8.Length = 0.37
pocket8.Reversed = True

doc.recompute()
